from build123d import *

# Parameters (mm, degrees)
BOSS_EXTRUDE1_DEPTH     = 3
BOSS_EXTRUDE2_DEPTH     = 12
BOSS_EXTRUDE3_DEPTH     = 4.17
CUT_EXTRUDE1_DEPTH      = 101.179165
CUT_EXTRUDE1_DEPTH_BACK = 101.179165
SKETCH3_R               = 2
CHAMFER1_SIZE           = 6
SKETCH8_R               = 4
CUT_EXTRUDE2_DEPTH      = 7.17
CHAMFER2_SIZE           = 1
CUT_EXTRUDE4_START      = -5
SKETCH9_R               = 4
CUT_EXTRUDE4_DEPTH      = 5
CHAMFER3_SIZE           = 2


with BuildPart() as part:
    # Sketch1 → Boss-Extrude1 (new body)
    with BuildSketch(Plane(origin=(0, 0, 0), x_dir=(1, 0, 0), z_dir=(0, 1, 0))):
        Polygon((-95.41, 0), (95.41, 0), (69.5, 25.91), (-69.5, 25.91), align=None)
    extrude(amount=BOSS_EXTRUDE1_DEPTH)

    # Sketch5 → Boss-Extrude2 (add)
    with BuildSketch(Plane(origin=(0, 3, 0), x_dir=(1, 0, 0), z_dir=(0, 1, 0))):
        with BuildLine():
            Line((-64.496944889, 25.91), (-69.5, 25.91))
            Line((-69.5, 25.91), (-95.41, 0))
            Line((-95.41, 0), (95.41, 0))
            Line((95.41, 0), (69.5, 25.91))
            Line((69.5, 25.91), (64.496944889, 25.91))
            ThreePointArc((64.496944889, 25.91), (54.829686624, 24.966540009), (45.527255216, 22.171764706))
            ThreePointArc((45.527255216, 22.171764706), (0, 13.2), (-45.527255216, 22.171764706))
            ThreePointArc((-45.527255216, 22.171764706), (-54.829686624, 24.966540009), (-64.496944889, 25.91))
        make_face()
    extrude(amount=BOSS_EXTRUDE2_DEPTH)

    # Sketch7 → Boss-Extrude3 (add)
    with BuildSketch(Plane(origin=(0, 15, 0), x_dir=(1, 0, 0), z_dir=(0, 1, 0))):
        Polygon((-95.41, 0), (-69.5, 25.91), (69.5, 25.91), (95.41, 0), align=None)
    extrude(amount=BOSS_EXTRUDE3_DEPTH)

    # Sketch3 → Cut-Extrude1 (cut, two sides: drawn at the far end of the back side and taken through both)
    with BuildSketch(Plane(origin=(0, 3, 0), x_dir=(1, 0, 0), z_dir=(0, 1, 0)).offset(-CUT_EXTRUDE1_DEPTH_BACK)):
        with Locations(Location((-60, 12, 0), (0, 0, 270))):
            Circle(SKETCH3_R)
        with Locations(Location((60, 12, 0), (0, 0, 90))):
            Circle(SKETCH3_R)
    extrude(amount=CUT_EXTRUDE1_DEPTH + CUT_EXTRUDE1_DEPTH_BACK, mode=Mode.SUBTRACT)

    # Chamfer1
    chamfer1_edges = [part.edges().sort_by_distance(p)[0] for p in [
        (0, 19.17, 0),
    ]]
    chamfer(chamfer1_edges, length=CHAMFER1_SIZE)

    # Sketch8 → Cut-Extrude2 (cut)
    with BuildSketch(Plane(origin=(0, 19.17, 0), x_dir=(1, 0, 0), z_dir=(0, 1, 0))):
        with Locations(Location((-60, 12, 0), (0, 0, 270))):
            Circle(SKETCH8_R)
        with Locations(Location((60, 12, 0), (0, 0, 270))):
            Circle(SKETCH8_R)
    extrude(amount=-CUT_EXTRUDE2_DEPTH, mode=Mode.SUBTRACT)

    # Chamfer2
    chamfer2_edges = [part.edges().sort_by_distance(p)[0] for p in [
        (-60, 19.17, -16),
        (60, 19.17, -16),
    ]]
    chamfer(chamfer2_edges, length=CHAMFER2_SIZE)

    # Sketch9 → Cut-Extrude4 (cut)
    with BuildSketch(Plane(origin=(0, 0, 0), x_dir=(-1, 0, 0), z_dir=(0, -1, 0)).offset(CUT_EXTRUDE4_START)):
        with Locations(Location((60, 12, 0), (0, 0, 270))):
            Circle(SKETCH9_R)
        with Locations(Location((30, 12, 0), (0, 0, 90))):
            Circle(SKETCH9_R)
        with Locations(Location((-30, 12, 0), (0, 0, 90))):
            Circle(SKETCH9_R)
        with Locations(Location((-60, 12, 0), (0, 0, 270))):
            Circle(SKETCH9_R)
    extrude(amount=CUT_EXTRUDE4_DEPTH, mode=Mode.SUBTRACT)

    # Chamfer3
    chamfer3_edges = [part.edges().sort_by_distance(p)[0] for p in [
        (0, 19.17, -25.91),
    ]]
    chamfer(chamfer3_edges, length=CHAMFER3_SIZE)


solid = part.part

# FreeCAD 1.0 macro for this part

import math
import FreeCAD as App
import Part
import Sketcher

V = App.Vector
Q = App.Units.Quantity


def edges_at(feature, points):
    """Names of the edges that pass closest to the given points."""
    edges = feature.Shape.Edges
    near = lambda p: min(range(len(edges)), key=lambda i: edges[i].distToShape(Part.Vertex(*p))[0])
    return sorted({f"Edge{near(p) + 1}" for p in points})

doc = App.newDocument("Part")
params = doc.addObject("Spreadsheet::Sheet", "Params")
for row, (alias, value) in enumerate([
    ("sketch1_width", "139 mm"),
    ("sketch1_width2", "190.82 mm"),
    ("pad1_length", "3 mm"),
    ("sketch2_radius", "50 mm"),
    ("sketch2_radius2", "120 mm"),
    ("sketch2_width", "190.82 mm"),
    ("pad2_length", "12 mm"),
    ("sketch3_width", "139 mm"),
    ("sketch3_width2", "190.82 mm"),
    ("pad3_length", "4.17 mm"),
    ("sketch4_diameter", "4 mm"),
    ("chamfer_size", "6 mm"),
    ("sketch5_diameter", "8 mm"),
    ("pocket2_length", "7.17 mm"),
    ("chamfer2_size", "1 mm"),
    ("sketch6_diameter", "8 mm"),
    ("pocket3_length", "5 mm"),
    ("chamfer3_size", "2 mm"),
], start=1):
    params.set(f"A{row}", alias)
    params.set(f"B{row}", "=" + value)
    params.setAlias(f"B{row}", alias)

body = doc.addObject("PartDesign::Body", "Body")

# Sketch on XZ plane
sketch1 = body.newObject("Sketcher::SketchObject", "Sketch")
sketch1.AttachmentSupport = (doc.getObject("XZ_Plane"), [""])
sketch1.MapMode = "FlatFace"
sketch1.addGeometry([
    Part.LineSegment(V(-95, 0, 0), V(95, 0, 0)),
    Part.LineSegment(V(95, 0, 0), V(70, -26, 0)),
    Part.LineSegment(V(70, -26, 0), V(-70, -26, 0)),
    Part.LineSegment(V(-70, -26, 0), V(-95, 0, 0)),
], False)
sketch1.addConstraint([
    Sketcher.Constraint("Coincident", 0, 2, 1, 1),
    Sketcher.Constraint("Coincident", 1, 2, 2, 1),
    Sketcher.Constraint("Coincident", 2, 2, 3, 1),
    Sketcher.Constraint("Coincident", 3, 2, 0, 1),
    Sketcher.Constraint("Horizontal", 0),
    Sketcher.Constraint("Horizontal", 2),
    Sketcher.Constraint("Symmetric", 0, 2, 3, 2, -1, 1),
    Sketcher.Constraint("Perpendicular", 1, 3),
    Sketcher.Constraint("Equal", 1, 3),
    Sketcher.Constraint("DistanceX", 2, 2, 2, 1, Q("139 mm")),
    Sketcher.Constraint("DistanceX", 0, 1, 0, 2, Q("190.82 mm")),
])
sketch1.setExpression("Constraints[9]", "Params.sketch1_width")
sketch1.setExpression("Constraints[10]", "Params.sketch1_width2")
pad1 = body.newObject("PartDesign::Pad", "Pad")
pad1.Profile = sketch1
pad1.setExpression("Length", "Params.pad1_length")
pad1.Reversed = True

# Sketch on XZ plane
sketch2 = body.newObject("Sketcher::SketchObject", "Sketch001")
sketch2.AttachmentSupport = (doc.getObject("XZ_Plane"), [""])
sketch2.MapMode = "FlatFace"
sketch2.AttachmentOffset = App.Placement(V(0, 0, -3), App.Rotation())
sketch2.addGeometry([
    Part.LineSegment(V(-64, -26, 0), V(-70, -26, 0)),  # 0
    Part.LineSegment(V(-70, -26, 0), V(-95, 0, 0)),  # 1
    Part.LineSegment(V(-95, 0, 0), V(95, 0, 0)),  # 2
    Part.LineSegment(V(95, 0, 0), V(70, -26, 0)),  # 3
    Part.LineSegment(V(70, -26, 0), V(64, -26, 0)),  # 4
    Part.ArcOfCircle(Part.Circle(V(64, 24, 0), V(0, 0, 1), 50), math.radians(-112), math.radians(-90)),  # 5
    Part.ArcOfCircle(Part.Circle(V(0, -133, 0), V(0, 0, 1), 120), math.radians(68), math.radians(112)),  # 6
    Part.ArcOfCircle(Part.Circle(V(-64, 24, 0), V(0, 0, 1), 50), math.radians(-90), math.radians(-68)),  # 7
], False)
sketch2.addConstraint([
    Sketcher.Constraint("Coincident", 0, 2, 1, 1),
    Sketcher.Constraint("Coincident", 1, 2, 2, 1),
    Sketcher.Constraint("Coincident", 2, 2, 3, 1),
    Sketcher.Constraint("Coincident", 3, 2, 4, 1),
    Sketcher.Constraint("Tangent", 4, 2, 5, 2),
    Sketcher.Constraint("Tangent", 5, 1, 6, 1),
    Sketcher.Constraint("Tangent", 6, 2, 7, 2),
    Sketcher.Constraint("Tangent", 7, 1, 0, 1),
    Sketcher.Constraint("Horizontal", 0),
    Sketcher.Constraint("Horizontal", 2),
    Sketcher.Constraint("Horizontal", 4),
    Sketcher.Constraint("Equal", 5, 7),
    Sketcher.Constraint("Symmetric", 1, 2, 2, 2, -1, 1),
    Sketcher.Constraint("Symmetric", 5, 3, 7, 3, -2),
    Sketcher.Constraint("Perpendicular", 1, 3),
    Sketcher.Constraint("Equal", 0, 4),
    Sketcher.Constraint("Radius", 5, Q("50 mm")),
    Sketcher.Constraint("Radius", 6, Q("120 mm")),
    Sketcher.Constraint("DistanceX", 0, 2, 3, 2, Q("139 mm")),
    Sketcher.Constraint("DistanceX", 2, 1, 2, 2, Q("190.82 mm")),
    Sketcher.Constraint("DistanceY", 6, 3, -1, 1, Q("133.2 mm")),
])
sketch2.setExpression("Constraints[16]", "Params.sketch2_radius")
sketch2.setExpression("Constraints[17]", "Params.sketch2_radius2")
sketch2.setExpression("Constraints[19]", "Params.sketch2_width")
pad2 = body.newObject("PartDesign::Pad", "Pad001")
pad2.Profile = sketch2
pad2.setExpression("Length", "Params.pad2_length")
pad2.Reversed = True

# Sketch on XZ plane
sketch3 = body.newObject("Sketcher::SketchObject", "Sketch002")
sketch3.AttachmentSupport = (doc.getObject("XZ_Plane"), [""])
sketch3.MapMode = "FlatFace"
sketch3.AttachmentOffset = App.Placement(V(0, 0, -15), App.Rotation())
sketch3.addGeometry([
    Part.LineSegment(V(-70, -26, 0), V(-95, 0, 0)),
    Part.LineSegment(V(-95, 0, 0), V(95, 0, 0)),
    Part.LineSegment(V(95, 0, 0), V(70, -26, 0)),
    Part.LineSegment(V(70, -26, 0), V(-70, -26, 0)),
], False)
sketch3.addConstraint([
    Sketcher.Constraint("Coincident", 0, 2, 1, 1),
    Sketcher.Constraint("Coincident", 1, 2, 2, 1),
    Sketcher.Constraint("Coincident", 2, 2, 3, 1),
    Sketcher.Constraint("Coincident", 3, 2, 0, 1),
    Sketcher.Constraint("Horizontal", 1),
    Sketcher.Constraint("Horizontal", 3),
    Sketcher.Constraint("Symmetric", 0, 2, 1, 2, -1, 1),
    Sketcher.Constraint("Perpendicular", 0, 2),
    Sketcher.Constraint("Equal", 0, 2),
    Sketcher.Constraint("DistanceX", 3, 2, 3, 1, Q("139 mm")),
    Sketcher.Constraint("DistanceX", 1, 1, 1, 2, Q("190.82 mm")),
])
sketch3.setExpression("Constraints[9]", "Params.sketch3_width")
sketch3.setExpression("Constraints[10]", "Params.sketch3_width2")
pad3 = body.newObject("PartDesign::Pad", "Pad002")
pad3.Profile = sketch3
pad3.setExpression("Length", "Params.pad3_length")
pad3.Reversed = True

# Sketch on XZ plane
sketch4 = body.newObject("Sketcher::SketchObject", "Sketch003")
sketch4.AttachmentSupport = (doc.getObject("XZ_Plane"), [""])
sketch4.MapMode = "FlatFace"
sketch4.AttachmentOffset = App.Placement(V(0, 0, -3), App.Rotation())
sketch4.addGeometry([
    Part.Circle(V(-60, -12, 0), V(0, 0, 1), 2),
    Part.Circle(V(60, -12, 0), V(0, 0, 1), 2),
], False)
sketch4.addConstraint([
    Sketcher.Constraint("Equal", 0, 1),
    Sketcher.Constraint("Symmetric", 0, 3, 1, 3, -2),
    Sketcher.Constraint("Diameter", 0, Q("4 mm")),
    Sketcher.Constraint("DistanceX", 0, 3, -1, 1, Q("60 mm")),
    Sketcher.Constraint("DistanceY", 0, 3, -1, 1, Q("12 mm")),
])
sketch4.setExpression("Constraints[2]", "Params.sketch4_diameter")
pocket1 = body.newObject("PartDesign::Pocket", "Pocket")
pocket1.Profile = sketch4
pocket1.Type = "ThroughAll"
pocket1.Midplane = True
doc.recompute()

chamfer = body.newObject("PartDesign::Chamfer", "Chamfer")
chamfer.Base = (pocket1, edges_at(pocket1, [(0, 19.17, 0)]))
chamfer.setExpression("Size", "Params.chamfer_size")

# Sketch on XZ plane
sketch5 = body.newObject("Sketcher::SketchObject", "Sketch004")
sketch5.AttachmentSupport = (doc.getObject("XZ_Plane"), [""])
sketch5.MapMode = "FlatFace"
sketch5.AttachmentOffset = App.Placement(V(0, 0, -19.17), App.Rotation())
sketch5.addGeometry([
    Part.Circle(V(-60, -12, 0), V(0, 0, 1), 4),
    Part.Circle(V(60, -12, 0), V(0, 0, 1), 4),
], False)
sketch5.addConstraint([
    Sketcher.Constraint("Equal", 0, 1),
    Sketcher.Constraint("Symmetric", 0, 3, 1, 3, -2),
    Sketcher.Constraint("Diameter", 0, Q("8 mm")),
    Sketcher.Constraint("DistanceX", 0, 3, -1, 1, Q("60 mm")),
    Sketcher.Constraint("DistanceY", 0, 3, -1, 1, Q("12 mm")),
])
sketch5.setExpression("Constraints[2]", "Params.sketch5_diameter")
pocket2 = body.newObject("PartDesign::Pocket", "Pocket001")
pocket2.Profile = sketch5
pocket2.setExpression("Length", "Params.pocket2_length")
pocket2.Reversed = True
doc.recompute()

chamfer2 = body.newObject("PartDesign::Chamfer", "Chamfer001")
chamfer2.Base = (pocket2, edges_at(pocket2, [(-60, 19.17, -16), (60, 19.17, -16)]))
chamfer2.setExpression("Size", "Params.chamfer2_size")

# Sketch on XZ plane
sketch6 = body.newObject("Sketcher::SketchObject", "Sketch005")
sketch6.AttachmentSupport = (doc.getObject("XZ_Plane"), [""])
sketch6.MapMode = "FlatFace"
sketch6.AttachmentOffset = App.Placement(V(0, 0, -5), App.Rotation())
sketch6.addGeometry([
    Part.Circle(V(-60, -12, 0), V(0, 0, 1), 4),
    Part.Circle(V(-30, -12, 0), V(0, 0, 1), 4),
    Part.Circle(V(30, -12, 0), V(0, 0, 1), 4),
    Part.Circle(V(60, -12, 0), V(0, 0, 1), 4),
], False)
sketch6.addConstraint([
    Sketcher.Constraint("Equal", 0, 1),
    Sketcher.Constraint("Equal", 1, 2),
    Sketcher.Constraint("Equal", 2, 3),
    Sketcher.Constraint("Symmetric", 1, 3, 2, 3, -2),
    Sketcher.Constraint("Symmetric", 0, 3, 3, 3, -2),
    Sketcher.Constraint("Horizontal", 0, 3, 1, 3),
    Sketcher.Constraint("Diameter", 0, Q("8 mm")),
    Sketcher.Constraint("DistanceX", 0, 3, -1, 1, Q("60 mm")),
    Sketcher.Constraint("DistanceY", 0, 3, -1, 1, Q("12 mm")),
    Sketcher.Constraint("DistanceX", 1, 3, -1, 1, Q("30 mm")),
])
sketch6.setExpression("Constraints[6]", "Params.sketch6_diameter")
pocket3 = body.newObject("PartDesign::Pocket", "Pocket002")
pocket3.Profile = sketch6
pocket3.setExpression("Length", "Params.pocket3_length")
pocket3.Reversed = True
doc.recompute()

chamfer3 = body.newObject("PartDesign::Chamfer", "Chamfer002")
chamfer3.Base = (pocket3, edges_at(pocket3, [(0, 19.17, -25.91)]))
chamfer3.setExpression("Size", "Params.chamfer3_size")

doc.recompute()
